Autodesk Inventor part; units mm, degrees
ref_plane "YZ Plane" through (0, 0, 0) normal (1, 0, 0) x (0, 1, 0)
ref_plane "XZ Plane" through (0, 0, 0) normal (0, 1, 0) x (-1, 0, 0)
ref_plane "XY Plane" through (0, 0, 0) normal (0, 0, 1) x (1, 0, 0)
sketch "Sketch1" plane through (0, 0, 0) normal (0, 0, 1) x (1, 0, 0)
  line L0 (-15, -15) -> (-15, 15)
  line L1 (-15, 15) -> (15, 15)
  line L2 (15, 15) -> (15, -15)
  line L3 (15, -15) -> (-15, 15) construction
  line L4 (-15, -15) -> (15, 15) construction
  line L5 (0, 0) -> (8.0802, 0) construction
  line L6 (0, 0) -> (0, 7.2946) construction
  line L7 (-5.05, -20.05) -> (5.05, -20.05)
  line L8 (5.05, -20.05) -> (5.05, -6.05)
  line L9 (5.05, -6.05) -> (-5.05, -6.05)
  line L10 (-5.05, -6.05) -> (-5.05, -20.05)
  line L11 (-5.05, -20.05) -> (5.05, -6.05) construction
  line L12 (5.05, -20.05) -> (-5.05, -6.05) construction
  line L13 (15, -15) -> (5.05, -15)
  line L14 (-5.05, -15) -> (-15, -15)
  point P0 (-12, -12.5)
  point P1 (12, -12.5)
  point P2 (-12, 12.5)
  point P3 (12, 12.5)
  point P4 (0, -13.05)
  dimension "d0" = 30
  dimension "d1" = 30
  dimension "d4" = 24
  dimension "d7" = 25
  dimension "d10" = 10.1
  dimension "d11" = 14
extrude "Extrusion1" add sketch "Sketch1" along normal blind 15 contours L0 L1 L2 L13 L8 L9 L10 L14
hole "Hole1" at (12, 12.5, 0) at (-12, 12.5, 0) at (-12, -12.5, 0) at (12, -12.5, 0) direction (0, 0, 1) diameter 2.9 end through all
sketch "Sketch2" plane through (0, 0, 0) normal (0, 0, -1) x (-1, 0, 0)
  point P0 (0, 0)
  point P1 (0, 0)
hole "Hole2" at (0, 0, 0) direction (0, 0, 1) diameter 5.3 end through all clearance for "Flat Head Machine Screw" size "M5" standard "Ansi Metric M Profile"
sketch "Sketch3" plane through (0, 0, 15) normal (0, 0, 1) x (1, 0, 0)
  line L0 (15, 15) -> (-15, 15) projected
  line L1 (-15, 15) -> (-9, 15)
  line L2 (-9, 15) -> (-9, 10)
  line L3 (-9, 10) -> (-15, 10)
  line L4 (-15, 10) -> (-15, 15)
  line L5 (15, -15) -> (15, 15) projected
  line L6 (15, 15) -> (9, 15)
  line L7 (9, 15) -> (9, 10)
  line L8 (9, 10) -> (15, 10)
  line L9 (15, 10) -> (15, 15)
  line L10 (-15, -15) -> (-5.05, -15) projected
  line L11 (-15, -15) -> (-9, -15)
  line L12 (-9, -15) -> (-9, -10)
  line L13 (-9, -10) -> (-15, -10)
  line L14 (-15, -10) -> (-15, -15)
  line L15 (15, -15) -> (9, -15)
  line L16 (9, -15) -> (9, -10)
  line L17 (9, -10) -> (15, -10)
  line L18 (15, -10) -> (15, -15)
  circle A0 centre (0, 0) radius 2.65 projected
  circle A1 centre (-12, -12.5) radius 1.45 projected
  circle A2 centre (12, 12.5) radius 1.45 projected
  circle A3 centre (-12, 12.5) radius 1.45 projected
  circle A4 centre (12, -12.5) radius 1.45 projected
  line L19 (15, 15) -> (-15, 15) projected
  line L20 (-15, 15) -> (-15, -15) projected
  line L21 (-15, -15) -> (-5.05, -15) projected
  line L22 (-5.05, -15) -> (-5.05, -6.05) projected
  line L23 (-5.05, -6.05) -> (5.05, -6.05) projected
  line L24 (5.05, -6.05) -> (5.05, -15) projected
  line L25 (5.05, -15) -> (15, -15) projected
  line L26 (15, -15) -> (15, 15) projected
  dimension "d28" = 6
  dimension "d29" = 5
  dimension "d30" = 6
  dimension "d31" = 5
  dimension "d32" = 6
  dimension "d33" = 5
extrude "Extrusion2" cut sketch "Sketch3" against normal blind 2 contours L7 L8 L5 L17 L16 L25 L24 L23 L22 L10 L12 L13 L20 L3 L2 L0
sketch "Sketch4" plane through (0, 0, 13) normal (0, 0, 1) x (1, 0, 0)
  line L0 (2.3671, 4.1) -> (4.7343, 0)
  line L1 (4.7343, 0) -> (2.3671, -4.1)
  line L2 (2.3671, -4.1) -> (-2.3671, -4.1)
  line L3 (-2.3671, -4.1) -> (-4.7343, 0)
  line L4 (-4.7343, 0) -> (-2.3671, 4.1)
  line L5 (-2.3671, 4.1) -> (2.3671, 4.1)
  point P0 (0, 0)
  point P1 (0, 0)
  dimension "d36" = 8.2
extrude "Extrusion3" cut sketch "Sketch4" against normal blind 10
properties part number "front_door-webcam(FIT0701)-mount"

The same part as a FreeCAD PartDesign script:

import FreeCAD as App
import Part
import Sketcher
Q = App.Units.Quantity


def add_polygon(sketch, points):
    """Adds a closed chain of lines whose ends are joined by coincident constraints."""
    first, n = sketch.GeometryCount, len(points)
    for a, b in zip(points, points[1:] + points[:1]):
        sketch.addGeometry(Part.LineSegment(App.Vector(*a, 0), App.Vector(*b, 0)), False)
    for i in range(n):
        sketch.addConstraint(Sketcher.Constraint("Coincident", first + i, 2, first + (i + 1) % n, 1))

doc = App.newDocument("Part")
body = doc.addObject("PartDesign::Body", "Body")

sketch1 = body.newObject("Sketcher::SketchObject", "Sketch")
sketch1.AttachmentSupport = (doc.getObject("XY_Plane"), [""])
sketch1.MapMode = "FlatFace"
add_polygon(sketch1, [(-15, 15), (-15, -15), (-5, -15), (-5, -6), (5, -6), (5, -15), (15, -15), (15, 15)])
sketch1.addConstraint(Sketcher.Constraint("Vertical", 0))
sketch1.addConstraint(Sketcher.Constraint("Horizontal", 1))
sketch1.addConstraint(Sketcher.Constraint("Vertical", 2))
sketch1.addConstraint(Sketcher.Constraint("Horizontal", 3))
sketch1.addConstraint(Sketcher.Constraint("Vertical", 4))
sketch1.addConstraint(Sketcher.Constraint("Horizontal", 5))
sketch1.addConstraint(Sketcher.Constraint("Vertical", 6))
sketch1.addConstraint(Sketcher.Constraint("Horizontal", 7))
sketch1.addConstraint(Sketcher.Constraint("Symmetric", 0, 2, 6, 2, -1, 1))
sketch1.addConstraint(Sketcher.Constraint("Symmetric", 1, 2, 4, 2, -2))
sketch1.addConstraint(Sketcher.Constraint("Equal", 7, 0))
sketch1.addConstraint(Sketcher.Constraint("DistanceX", 7, 2, 7, 1, 30.0))
sketch1.addConstraint(Sketcher.Constraint("DistanceX", 3, 1, 3, 2, 10.1))
sketch1.addConstraint(Sketcher.Constraint("DistanceY", 2, 1, 2, 2, 8.95))
pad1 = body.newObject("PartDesign::Pad", "Pad")
pad1.Profile = sketch1
pad1.Length = 15

sketch2 = body.newObject("Sketcher::SketchObject", "Sketch001")
sketch2.AttachmentSupport = (doc.getObject("XY_Plane"), [""])
sketch2.MapMode = "FlatFace"
sketch2.addGeometry(Part.Circle(App.Vector(12, 12.5, 0), App.Vector(0, 0, 1), 1.4), False)
sketch2.addGeometry(Part.Circle(App.Vector(-12, 12.5, 0), App.Vector(0, 0, 1), 1.4), False)
sketch2.addGeometry(Part.Circle(App.Vector(-12, -12.5, 0), App.Vector(0, 0, 1), 1.4), False)
sketch2.addGeometry(Part.Circle(App.Vector(12, -12.5, 0), App.Vector(0, 0, 1), 1.4), False)
sketch2.addConstraint(Sketcher.Constraint("Equal", 0, 1))
sketch2.addConstraint(Sketcher.Constraint("Equal", 1, 2))
sketch2.addConstraint(Sketcher.Constraint("Equal", 2, 3))
sketch2.addConstraint(Sketcher.Constraint("Symmetric", 0, 3, 2, 3, -1, 1))
sketch2.addConstraint(Sketcher.Constraint("Symmetric", 1, 3, 3, 3, -1, 1))
sketch2.addConstraint(Sketcher.Constraint("Symmetric", 0, 3, 1, 3, -2))
sketch2.addConstraint(Sketcher.Constraint("Diameter", 0, 2.9))
sketch2.addConstraint(Sketcher.Constraint("DistanceX", -1, 1, 0, 3, 12.0))
sketch2.addConstraint(Sketcher.Constraint("DistanceY", 2, 3, 1, 3, 25.0))
doc.recompute()
hole = body.newObject("PartDesign::Hole", "Hole")
hole.Profile = sketch2
hole.ThreadType = "None"
hole.Diameter = 2.9
hole.DepthType = "ThroughAll"
hole.Reversed = True

sketch3 = body.newObject("Sketcher::SketchObject", "Sketch002")
sketch3.AttachmentSupport = (doc.getObject("XY_Plane"), [""])
sketch3.MapMode = "FlatFace"
sketch3.addGeometry(Part.Circle(App.Vector(0, 0, 0), App.Vector(0, 0, 1), 2.6), False)
sketch3.addConstraint(Sketcher.Constraint("Coincident", 0, 3, -1, 1))
sketch3.addConstraint(Sketcher.Constraint("Diameter", 0, 5.3))
doc.recompute()
hole2 = body.newObject("PartDesign::Hole", "Hole001")
hole2.Profile = sketch3
hole2.ThreadType = "None"
hole2.Diameter = 5.3
hole2.DepthType = "ThroughAll"
hole2.Reversed = True

sketch4 = body.newObject("Sketcher::SketchObject", "Sketch003")
sketch4.AttachmentSupport = (doc.getObject("XY_Plane"), [""])
sketch4.MapMode = "FlatFace"
sketch4.AttachmentOffset = App.Placement(App.Vector(0, 0, 15), App.Rotation())
add_polygon(sketch4, [(9, 10), (9, 15), (-9, 15), (-9, 10), (-15, 10), (-15, -10), (-9, -10), (-9, -15), (-5, -15), (-5, -6), (5, -6), (5, -15), (9, -15), (9, -10), (15, -10), (15, 10)])
sketch4.addGeometry(Part.Circle(App.Vector(0, 0, 0), App.Vector(0, 0, 1), 2.6), False)
sketch4.addConstraint(Sketcher.Constraint("Vertical", 0))
sketch4.addConstraint(Sketcher.Constraint("Horizontal", 1))
sketch4.addConstraint(Sketcher.Constraint("Vertical", 2))
sketch4.addConstraint(Sketcher.Constraint("Horizontal", 3))
sketch4.addConstraint(Sketcher.Constraint("Vertical", 4))
sketch4.addConstraint(Sketcher.Constraint("Horizontal", 5))
sketch4.addConstraint(Sketcher.Constraint("Vertical", 6))
sketch4.addConstraint(Sketcher.Constraint("Horizontal", 7))
sketch4.addConstraint(Sketcher.Constraint("Vertical", 8))
sketch4.addConstraint(Sketcher.Constraint("Horizontal", 9))
sketch4.addConstraint(Sketcher.Constraint("Vertical", 10))
sketch4.addConstraint(Sketcher.Constraint("Horizontal", 11))
sketch4.addConstraint(Sketcher.Constraint("Vertical", 12))
sketch4.addConstraint(Sketcher.Constraint("Horizontal", 13))
sketch4.addConstraint(Sketcher.Constraint("Vertical", 14))
sketch4.addConstraint(Sketcher.Constraint("Horizontal", 15))
sketch4.addConstraint(Sketcher.Constraint("Coincident", 16, 3, -1, 1))
sketch4.addConstraint(Sketcher.Constraint("Symmetric", 0, 2, 6, 2, -1, 1))
sketch4.addConstraint(Sketcher.Constraint("Symmetric", 1, 2, 11, 2, -1, 1))
sketch4.addConstraint(Sketcher.Constraint("Symmetric", 3, 2, 13, 2, -1, 1))
sketch4.addConstraint(Sketcher.Constraint("Symmetric", 5, 2, 12, 2, -2))
sketch4.addConstraint(Sketcher.Constraint("Horizontal", 3, 2, 14, 2))
sketch4.addConstraint(Sketcher.Constraint("Equal", 7, 11))
sketch4.addConstraint(Sketcher.Constraint("DistanceX", 3, 2, 3, 1, 6.0))
sketch4.addConstraint(Sketcher.Constraint("DistanceY", 0, 1, 0, 2, 5.0))
sketch4.addConstraint(Sketcher.Constraint("Diameter", 16, 5.3))
sketch4.addConstraint(Sketcher.Constraint("DistanceX", 1, 2, 1, 1, 18.0))
sketch4.addConstraint(Sketcher.Constraint("DistanceY", 4, 2, 4, 1, 20.0))
sketch4.addConstraint(Sketcher.Constraint("DistanceX", 9, 1, 9, 2, 10.1))
sketch4.addConstraint(Sketcher.Constraint("DistanceY", 8, 1, 8, 2, 8.95))
pocket1 = body.newObject("PartDesign::Pocket", "Pocket")
pocket1.Profile = sketch4
pocket1.Length = 2

sketch5 = body.newObject("Sketcher::SketchObject", "Sketch004")
sketch5.AttachmentSupport = (doc.getObject("XY_Plane"), [""])
sketch5.MapMode = "FlatFace"
sketch5.AttachmentOffset = App.Placement(App.Vector(0, 0, 13), App.Rotation())
add_polygon(sketch5, [(4.7, 0), (2.4, 4.1), (-2.4, 4.1), (-4.7, 0), (-2.4, -4.1), (2.4, -4.1)])
sketch5.addConstraint(Sketcher.Constraint("Horizontal", 1))
sketch5.addConstraint(Sketcher.Constraint("Horizontal", 4))
sketch5.addConstraint(Sketcher.Constraint("Symmetric", 0, 2, 3, 2, -1, 1))
sketch5.addConstraint(Sketcher.Constraint("Symmetric", 2, 2, 5, 2, -1, 1))
sketch5.addConstraint(Sketcher.Constraint("PointOnObject", 2, 2, -1))
sketch5.addConstraint(Sketcher.Constraint("Parallel", 2, 5))
sketch5.addConstraint(Sketcher.Constraint("Vertical", 1, 2, 3, 2))
sketch5.addConstraint(Sketcher.Constraint("DistanceY", 3, 2, 1, 2, 8.2))
sketch5.addConstraint(Sketcher.Constraint("Angle", 0, Q("120.0007 deg")))
sketch5.addConstraint(Sketcher.Constraint("DistanceX", 1, 2, 1, 1, 4.7342))
pocket2 = body.newObject("PartDesign::Pocket", "Pocket001")
pocket2.Profile = sketch5
pocket2.Length = 10

doc.recompute()
